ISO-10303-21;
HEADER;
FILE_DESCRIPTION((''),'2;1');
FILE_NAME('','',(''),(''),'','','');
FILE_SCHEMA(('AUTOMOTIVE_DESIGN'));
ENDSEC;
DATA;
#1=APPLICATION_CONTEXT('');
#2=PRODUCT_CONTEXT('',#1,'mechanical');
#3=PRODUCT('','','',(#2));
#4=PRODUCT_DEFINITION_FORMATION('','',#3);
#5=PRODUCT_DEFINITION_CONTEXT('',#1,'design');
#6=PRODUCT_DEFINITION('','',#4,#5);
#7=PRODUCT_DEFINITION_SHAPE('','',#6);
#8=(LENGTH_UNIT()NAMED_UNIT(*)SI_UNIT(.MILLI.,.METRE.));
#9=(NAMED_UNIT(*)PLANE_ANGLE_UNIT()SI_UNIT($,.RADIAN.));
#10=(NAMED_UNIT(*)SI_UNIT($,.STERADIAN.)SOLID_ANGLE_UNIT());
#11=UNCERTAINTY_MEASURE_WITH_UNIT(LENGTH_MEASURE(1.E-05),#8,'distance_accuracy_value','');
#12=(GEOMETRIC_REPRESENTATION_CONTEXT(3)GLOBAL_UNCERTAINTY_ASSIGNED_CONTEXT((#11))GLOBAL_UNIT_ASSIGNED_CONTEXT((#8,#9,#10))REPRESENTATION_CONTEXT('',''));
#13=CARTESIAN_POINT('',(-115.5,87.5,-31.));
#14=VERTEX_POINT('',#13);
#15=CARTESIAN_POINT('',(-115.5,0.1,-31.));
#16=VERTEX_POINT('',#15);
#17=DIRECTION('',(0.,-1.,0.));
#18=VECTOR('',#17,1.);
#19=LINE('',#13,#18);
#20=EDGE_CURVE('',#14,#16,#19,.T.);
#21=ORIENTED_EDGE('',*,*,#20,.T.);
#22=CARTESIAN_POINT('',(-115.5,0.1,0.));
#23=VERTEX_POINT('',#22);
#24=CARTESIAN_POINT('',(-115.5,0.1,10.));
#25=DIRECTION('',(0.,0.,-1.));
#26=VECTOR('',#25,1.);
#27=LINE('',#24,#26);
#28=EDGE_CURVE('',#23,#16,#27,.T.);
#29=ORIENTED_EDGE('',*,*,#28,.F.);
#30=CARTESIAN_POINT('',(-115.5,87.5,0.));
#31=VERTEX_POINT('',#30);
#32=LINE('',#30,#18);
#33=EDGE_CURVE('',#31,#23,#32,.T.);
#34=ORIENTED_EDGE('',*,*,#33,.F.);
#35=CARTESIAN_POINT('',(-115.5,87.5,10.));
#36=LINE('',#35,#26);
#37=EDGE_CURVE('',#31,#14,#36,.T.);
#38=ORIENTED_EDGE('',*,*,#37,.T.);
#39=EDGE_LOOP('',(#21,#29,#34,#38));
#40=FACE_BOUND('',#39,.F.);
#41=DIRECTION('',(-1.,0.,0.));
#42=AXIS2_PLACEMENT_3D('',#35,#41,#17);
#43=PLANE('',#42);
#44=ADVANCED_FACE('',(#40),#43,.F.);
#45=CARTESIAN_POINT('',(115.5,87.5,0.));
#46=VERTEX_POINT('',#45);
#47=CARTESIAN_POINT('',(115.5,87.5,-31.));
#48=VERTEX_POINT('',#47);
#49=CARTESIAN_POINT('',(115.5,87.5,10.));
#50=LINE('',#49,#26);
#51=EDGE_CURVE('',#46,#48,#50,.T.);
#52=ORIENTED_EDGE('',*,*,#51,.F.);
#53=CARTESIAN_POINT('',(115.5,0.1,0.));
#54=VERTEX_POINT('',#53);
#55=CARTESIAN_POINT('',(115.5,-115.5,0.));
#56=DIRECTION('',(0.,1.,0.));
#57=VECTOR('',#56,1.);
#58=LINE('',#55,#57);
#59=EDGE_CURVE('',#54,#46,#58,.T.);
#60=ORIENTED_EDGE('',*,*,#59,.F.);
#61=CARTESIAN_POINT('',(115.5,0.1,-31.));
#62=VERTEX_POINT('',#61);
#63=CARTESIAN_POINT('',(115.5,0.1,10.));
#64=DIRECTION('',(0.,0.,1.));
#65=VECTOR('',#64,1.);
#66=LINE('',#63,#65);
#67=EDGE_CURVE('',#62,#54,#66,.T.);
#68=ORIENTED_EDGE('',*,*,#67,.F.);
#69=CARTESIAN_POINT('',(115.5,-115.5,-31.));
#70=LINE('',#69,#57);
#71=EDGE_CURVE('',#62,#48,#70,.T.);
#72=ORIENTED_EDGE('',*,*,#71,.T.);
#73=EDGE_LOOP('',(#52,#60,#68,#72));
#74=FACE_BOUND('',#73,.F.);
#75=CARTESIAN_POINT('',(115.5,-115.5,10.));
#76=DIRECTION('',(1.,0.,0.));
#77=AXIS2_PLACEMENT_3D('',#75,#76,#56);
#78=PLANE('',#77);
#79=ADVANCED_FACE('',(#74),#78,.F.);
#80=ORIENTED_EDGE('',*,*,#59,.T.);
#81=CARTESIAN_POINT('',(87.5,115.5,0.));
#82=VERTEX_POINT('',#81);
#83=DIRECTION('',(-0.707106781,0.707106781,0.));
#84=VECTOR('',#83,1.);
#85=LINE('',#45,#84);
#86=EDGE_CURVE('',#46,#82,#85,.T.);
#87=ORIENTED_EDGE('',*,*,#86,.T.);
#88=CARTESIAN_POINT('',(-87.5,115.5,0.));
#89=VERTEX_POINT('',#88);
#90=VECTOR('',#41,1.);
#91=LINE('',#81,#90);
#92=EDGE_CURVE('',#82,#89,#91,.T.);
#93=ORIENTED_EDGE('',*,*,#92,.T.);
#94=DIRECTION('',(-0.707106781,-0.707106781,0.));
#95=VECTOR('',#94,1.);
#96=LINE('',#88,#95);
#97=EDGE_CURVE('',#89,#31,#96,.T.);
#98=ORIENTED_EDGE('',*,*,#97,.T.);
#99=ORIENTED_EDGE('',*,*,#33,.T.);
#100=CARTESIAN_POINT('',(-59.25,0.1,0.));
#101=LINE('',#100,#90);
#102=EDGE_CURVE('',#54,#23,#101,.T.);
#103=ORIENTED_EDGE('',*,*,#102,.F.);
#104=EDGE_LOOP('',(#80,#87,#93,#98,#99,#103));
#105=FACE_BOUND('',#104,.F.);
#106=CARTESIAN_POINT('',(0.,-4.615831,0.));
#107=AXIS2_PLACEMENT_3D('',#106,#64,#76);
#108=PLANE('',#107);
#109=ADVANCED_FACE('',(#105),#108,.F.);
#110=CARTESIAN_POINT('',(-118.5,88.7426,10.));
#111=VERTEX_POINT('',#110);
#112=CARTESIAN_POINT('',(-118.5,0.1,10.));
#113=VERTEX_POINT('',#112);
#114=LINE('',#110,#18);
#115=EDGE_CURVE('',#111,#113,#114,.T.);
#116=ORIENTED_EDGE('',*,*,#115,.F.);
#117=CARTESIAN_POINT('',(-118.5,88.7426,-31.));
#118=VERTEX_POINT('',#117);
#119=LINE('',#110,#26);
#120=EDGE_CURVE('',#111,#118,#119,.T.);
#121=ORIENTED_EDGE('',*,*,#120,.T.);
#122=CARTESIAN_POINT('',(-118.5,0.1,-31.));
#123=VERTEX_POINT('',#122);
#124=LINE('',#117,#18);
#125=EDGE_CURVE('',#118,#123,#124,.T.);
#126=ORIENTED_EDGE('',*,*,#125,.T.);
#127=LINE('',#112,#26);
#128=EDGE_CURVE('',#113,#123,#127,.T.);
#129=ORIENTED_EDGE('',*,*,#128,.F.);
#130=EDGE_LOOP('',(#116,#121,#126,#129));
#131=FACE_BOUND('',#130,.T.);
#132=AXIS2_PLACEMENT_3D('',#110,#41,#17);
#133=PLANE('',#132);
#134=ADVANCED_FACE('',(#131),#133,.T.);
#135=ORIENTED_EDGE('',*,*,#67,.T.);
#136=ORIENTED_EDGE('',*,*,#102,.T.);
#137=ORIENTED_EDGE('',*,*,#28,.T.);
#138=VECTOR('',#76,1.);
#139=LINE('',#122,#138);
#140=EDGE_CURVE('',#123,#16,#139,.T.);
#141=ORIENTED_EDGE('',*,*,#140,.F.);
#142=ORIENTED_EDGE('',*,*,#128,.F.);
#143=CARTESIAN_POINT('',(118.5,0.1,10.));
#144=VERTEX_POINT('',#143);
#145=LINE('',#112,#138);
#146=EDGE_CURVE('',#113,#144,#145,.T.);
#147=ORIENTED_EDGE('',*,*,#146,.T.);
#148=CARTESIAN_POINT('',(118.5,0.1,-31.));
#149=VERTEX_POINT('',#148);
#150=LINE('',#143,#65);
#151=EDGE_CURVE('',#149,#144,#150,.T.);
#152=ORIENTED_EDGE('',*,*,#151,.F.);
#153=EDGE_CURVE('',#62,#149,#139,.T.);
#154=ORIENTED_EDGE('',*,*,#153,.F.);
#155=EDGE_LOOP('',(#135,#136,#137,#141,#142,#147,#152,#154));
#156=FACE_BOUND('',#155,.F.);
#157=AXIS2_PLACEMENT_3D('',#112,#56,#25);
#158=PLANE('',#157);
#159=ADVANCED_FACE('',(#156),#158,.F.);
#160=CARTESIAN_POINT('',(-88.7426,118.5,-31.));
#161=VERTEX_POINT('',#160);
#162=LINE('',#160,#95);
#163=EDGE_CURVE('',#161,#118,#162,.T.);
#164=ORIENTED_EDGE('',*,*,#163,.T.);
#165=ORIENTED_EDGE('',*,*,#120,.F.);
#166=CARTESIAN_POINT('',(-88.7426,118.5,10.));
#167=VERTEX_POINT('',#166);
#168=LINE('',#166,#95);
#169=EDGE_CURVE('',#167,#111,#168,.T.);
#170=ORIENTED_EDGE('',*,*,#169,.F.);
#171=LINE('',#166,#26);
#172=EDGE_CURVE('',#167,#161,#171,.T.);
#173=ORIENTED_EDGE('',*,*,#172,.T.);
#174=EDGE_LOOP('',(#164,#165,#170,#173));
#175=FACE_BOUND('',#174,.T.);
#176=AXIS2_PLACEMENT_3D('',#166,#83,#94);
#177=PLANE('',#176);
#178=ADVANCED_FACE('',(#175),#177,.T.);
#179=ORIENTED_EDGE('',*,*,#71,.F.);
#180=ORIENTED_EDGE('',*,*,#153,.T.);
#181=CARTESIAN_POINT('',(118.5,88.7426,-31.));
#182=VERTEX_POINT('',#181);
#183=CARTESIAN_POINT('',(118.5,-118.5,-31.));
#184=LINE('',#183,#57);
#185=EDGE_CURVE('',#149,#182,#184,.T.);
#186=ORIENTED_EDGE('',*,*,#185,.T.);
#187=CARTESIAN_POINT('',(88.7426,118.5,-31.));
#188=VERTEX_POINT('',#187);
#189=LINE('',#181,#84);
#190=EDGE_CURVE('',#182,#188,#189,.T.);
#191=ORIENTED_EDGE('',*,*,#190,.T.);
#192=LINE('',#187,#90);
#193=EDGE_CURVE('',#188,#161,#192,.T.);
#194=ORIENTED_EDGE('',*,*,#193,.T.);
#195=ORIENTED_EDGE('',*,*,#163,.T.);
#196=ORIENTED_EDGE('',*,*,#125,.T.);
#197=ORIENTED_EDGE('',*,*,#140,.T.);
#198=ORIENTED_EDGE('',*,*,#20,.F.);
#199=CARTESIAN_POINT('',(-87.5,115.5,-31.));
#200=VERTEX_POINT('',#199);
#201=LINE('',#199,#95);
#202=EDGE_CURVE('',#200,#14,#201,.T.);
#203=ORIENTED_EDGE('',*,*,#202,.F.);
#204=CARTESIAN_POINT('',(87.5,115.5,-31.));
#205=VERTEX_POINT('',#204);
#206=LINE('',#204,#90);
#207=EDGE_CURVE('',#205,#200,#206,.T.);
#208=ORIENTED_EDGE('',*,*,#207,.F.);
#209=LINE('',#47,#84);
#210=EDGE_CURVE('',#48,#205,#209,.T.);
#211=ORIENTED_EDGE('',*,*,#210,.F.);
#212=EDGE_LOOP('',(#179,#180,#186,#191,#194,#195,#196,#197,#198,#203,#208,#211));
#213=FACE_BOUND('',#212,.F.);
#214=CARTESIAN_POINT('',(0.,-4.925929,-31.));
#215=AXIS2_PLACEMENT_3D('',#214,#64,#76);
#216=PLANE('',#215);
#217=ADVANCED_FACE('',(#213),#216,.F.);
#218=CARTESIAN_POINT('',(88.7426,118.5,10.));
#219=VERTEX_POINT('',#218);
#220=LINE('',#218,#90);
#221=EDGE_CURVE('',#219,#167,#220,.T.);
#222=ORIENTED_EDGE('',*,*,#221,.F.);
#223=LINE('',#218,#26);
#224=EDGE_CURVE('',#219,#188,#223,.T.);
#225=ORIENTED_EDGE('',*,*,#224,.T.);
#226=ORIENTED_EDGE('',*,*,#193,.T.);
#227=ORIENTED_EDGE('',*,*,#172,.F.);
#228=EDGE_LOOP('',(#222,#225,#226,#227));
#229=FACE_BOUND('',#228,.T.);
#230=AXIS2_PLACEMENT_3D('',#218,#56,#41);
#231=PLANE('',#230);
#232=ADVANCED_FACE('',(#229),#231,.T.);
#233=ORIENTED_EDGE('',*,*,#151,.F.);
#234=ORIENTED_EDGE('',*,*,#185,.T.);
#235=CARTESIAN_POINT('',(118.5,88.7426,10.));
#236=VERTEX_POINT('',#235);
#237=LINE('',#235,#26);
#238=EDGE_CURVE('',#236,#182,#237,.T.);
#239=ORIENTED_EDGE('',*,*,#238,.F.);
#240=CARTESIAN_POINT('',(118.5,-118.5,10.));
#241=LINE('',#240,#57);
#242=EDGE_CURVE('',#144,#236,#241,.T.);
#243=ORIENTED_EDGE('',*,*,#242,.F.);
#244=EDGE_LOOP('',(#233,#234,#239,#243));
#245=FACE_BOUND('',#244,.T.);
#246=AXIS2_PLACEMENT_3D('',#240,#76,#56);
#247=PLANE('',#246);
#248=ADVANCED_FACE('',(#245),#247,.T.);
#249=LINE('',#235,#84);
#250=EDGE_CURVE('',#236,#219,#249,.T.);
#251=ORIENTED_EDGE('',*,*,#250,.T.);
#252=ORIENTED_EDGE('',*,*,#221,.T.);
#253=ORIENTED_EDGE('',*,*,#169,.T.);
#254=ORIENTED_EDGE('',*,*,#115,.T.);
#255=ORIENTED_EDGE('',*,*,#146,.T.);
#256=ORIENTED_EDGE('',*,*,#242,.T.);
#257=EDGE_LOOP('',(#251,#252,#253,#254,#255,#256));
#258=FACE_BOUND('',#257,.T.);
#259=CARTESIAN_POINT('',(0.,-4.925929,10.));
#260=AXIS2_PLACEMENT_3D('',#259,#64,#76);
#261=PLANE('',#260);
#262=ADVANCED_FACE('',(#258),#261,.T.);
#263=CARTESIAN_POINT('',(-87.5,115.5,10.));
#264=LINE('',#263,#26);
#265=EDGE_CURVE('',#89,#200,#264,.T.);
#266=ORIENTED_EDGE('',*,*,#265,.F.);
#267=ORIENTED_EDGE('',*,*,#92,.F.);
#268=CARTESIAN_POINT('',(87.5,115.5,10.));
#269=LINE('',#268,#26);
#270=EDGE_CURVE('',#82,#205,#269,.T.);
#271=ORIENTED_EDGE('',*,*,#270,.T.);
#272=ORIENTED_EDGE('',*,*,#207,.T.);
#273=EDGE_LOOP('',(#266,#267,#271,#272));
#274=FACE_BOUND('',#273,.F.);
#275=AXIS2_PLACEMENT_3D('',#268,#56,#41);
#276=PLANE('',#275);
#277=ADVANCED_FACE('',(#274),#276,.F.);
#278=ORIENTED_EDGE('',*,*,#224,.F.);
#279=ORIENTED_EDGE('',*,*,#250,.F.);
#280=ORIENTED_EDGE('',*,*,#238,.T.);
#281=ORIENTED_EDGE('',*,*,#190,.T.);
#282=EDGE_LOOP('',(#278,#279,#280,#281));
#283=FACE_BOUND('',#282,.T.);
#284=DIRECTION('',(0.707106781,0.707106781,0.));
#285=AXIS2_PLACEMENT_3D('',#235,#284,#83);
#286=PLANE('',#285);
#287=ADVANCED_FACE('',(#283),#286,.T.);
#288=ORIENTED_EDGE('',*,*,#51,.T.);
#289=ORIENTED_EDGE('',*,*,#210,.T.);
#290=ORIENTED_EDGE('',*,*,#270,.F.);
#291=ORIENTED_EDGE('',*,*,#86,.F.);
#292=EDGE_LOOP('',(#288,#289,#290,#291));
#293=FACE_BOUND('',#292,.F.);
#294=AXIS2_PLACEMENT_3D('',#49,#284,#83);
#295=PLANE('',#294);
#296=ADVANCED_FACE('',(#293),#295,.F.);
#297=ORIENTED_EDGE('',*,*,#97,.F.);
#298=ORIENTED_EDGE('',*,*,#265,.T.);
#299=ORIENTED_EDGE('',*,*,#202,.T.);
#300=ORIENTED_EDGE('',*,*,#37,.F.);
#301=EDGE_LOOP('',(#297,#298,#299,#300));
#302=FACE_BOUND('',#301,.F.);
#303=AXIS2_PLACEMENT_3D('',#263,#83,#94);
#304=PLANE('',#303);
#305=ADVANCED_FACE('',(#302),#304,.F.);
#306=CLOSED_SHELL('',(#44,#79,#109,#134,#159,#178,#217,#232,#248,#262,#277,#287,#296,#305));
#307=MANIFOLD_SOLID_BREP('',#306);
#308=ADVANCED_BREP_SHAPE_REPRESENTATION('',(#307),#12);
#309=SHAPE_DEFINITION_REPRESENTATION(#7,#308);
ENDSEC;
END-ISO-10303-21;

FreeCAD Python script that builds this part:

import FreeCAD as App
import Part
import Sketcher

V = App.Vector
Q = App.Units.Quantity


def add_polygon(sketch, points):
    """Adds a closed chain of lines whose ends are joined by coincident constraints."""
    first, n = sketch.GeometryCount, len(points)
    for a, b in zip(points, points[1:] + points[:1]):
        sketch.addGeometry(Part.LineSegment(App.Vector(*a, 0), App.Vector(*b, 0)), False)
    for i in range(n):
        sketch.addConstraint(Sketcher.Constraint("Coincident", first + i, 2, first + (i + 1) % n, 1))

doc = App.newDocument("Part")
body = doc.addObject("PartDesign::Body", "Body")

sketch1 = body.newObject("Sketcher::SketchObject", "Sketch")
sketch1.AttachmentSupport = (doc.getObject("XY_Plane"), [""])
sketch1.MapMode = "FlatFace"
add_polygon(sketch1, [(-116, 88), (-116, -116), (116, -116), (116, 88), (88, 116), (-88, 116)])
sketch1.addConstraint([
    Sketcher.Constraint("Vertical", 0),
    Sketcher.Constraint("Horizontal", 1),
    Sketcher.Constraint("Vertical", 2),
    Sketcher.Constraint("Horizontal", 4),
    Sketcher.Constraint("Symmetric", 2, 2, 5, 2, -2),
    Sketcher.Constraint("Perpendicular", 3, 5),
    Sketcher.Constraint("Equal", 3, 5),
    Sketcher.Constraint("DistanceX", 1, 1, 1, 2, Q("231 mm")),
    Sketcher.Constraint("DistanceX", 4, 2, 4, 1, Q("175 mm")),
    Sketcher.Constraint("DistanceY", 0, 2, 0, 1, Q("203 mm")),
    Sketcher.Constraint("DistanceY", 0, 2, -1, 1, Q("115.5 mm")),
])
pad1 = body.newObject("PartDesign::Pad", "Pad")
pad1.Profile = sketch1
pad1.Length = 10

sketch2 = body.newObject("Sketcher::SketchObject", "Sketch001")
sketch2.AttachmentSupport = (doc.getObject("XY_Plane"), [""])
sketch2.MapMode = "FlatFace"
sketch2.AttachmentOffset = App.Placement(V(0, 0, 10), App.Rotation())
add_polygon(sketch2, [(118, 89), (89, 118), (-89, 118), (-118, 89), (-118, -118), (118, -118)])
add_polygon(sketch2, [(-88, 116), (88, 116), (116, 88), (116, -116), (-116, -116), (-116, 88)])
sketch2.addConstraint([
    Sketcher.Constraint("Horizontal", 1),
    Sketcher.Constraint("Vertical", 3),
    Sketcher.Constraint("Horizontal", 4),
    Sketcher.Constraint("Vertical", 5),
    Sketcher.Constraint("Horizontal", 6),
    Sketcher.Constraint("Vertical", 8),
    Sketcher.Constraint("Horizontal", 9),
    Sketcher.Constraint("Vertical", 10),
    Sketcher.Constraint("Symmetric", 2, 2, 5, 2, -2),
    Sketcher.Constraint("Symmetric", 7, 2, 10, 2, -2),
    Sketcher.Constraint("Perpendicular", 0, 2),
    Sketcher.Constraint("Perpendicular", 2, 7),
    Sketcher.Constraint("Perpendicular", 7, 11),
    Sketcher.Constraint("Equal", 0, 2),
    Sketcher.Constraint("DistanceX", 4, 1, 4, 2, Q("237 mm")),
    Sketcher.Constraint("DistanceX", 6, 1, 6, 2, Q("175 mm")),
    Sketcher.Constraint("DistanceX", 9, 2, 9, 1, Q("231 mm")),
    Sketcher.Constraint("DistanceY", 8, 2, 8, 1, Q("203 mm")),
    Sketcher.Constraint("DistanceY", 3, 2, 1, 2, Q("237 mm")),
    Sketcher.Constraint("DistanceY", 6, 2, 0, 2, Q("3 mm")),
    Sketcher.Constraint("DistanceY", -1, 1, 0, 2, Q("118.5 mm")),
    Sketcher.Constraint("DistanceX", 1, 2, 1, 1, Q("177.4852 mm")),
])
pad2 = body.newObject("PartDesign::Pad", "Pad001")
pad2.Profile = sketch2
pad2.Length = 41
pad2.Reversed = True

sketch3 = body.newObject("Sketcher::SketchObject", "Sketch002")
sketch3.AttachmentSupport = (doc.getObject("YZ_Plane"), [""])
sketch3.MapMode = "FlatFace"
sketch3.AttachmentOffset = App.Placement(V(0, 0, -118.5), App.Rotation())
add_polygon(sketch3, [(-118, -31), (-118, 10), (0, 10), (0, -31)])
sketch3.addConstraint([
    Sketcher.Constraint("Vertical", 0),
    Sketcher.Constraint("Horizontal", 1),
    Sketcher.Constraint("Vertical", 2),
    Sketcher.Constraint("Horizontal", 3),
    Sketcher.Constraint("DistanceY", 0, 1, 0, 2, Q("41 mm")),
    Sketcher.Constraint("DistanceX", 1, 1, 1, 2, Q("118.6 mm")),
    Sketcher.Constraint("DistanceY", -1, 1, 0, 2, Q("10 mm")),
    Sketcher.Constraint("DistanceX", 0, 2, -1, 1, Q("118.5 mm")),
])
pocket1 = body.newObject("PartDesign::Pocket", "Pocket")
pocket1.Profile = sketch3
pocket1.Length = 280
pocket1.Reversed = True

doc.recompute()
